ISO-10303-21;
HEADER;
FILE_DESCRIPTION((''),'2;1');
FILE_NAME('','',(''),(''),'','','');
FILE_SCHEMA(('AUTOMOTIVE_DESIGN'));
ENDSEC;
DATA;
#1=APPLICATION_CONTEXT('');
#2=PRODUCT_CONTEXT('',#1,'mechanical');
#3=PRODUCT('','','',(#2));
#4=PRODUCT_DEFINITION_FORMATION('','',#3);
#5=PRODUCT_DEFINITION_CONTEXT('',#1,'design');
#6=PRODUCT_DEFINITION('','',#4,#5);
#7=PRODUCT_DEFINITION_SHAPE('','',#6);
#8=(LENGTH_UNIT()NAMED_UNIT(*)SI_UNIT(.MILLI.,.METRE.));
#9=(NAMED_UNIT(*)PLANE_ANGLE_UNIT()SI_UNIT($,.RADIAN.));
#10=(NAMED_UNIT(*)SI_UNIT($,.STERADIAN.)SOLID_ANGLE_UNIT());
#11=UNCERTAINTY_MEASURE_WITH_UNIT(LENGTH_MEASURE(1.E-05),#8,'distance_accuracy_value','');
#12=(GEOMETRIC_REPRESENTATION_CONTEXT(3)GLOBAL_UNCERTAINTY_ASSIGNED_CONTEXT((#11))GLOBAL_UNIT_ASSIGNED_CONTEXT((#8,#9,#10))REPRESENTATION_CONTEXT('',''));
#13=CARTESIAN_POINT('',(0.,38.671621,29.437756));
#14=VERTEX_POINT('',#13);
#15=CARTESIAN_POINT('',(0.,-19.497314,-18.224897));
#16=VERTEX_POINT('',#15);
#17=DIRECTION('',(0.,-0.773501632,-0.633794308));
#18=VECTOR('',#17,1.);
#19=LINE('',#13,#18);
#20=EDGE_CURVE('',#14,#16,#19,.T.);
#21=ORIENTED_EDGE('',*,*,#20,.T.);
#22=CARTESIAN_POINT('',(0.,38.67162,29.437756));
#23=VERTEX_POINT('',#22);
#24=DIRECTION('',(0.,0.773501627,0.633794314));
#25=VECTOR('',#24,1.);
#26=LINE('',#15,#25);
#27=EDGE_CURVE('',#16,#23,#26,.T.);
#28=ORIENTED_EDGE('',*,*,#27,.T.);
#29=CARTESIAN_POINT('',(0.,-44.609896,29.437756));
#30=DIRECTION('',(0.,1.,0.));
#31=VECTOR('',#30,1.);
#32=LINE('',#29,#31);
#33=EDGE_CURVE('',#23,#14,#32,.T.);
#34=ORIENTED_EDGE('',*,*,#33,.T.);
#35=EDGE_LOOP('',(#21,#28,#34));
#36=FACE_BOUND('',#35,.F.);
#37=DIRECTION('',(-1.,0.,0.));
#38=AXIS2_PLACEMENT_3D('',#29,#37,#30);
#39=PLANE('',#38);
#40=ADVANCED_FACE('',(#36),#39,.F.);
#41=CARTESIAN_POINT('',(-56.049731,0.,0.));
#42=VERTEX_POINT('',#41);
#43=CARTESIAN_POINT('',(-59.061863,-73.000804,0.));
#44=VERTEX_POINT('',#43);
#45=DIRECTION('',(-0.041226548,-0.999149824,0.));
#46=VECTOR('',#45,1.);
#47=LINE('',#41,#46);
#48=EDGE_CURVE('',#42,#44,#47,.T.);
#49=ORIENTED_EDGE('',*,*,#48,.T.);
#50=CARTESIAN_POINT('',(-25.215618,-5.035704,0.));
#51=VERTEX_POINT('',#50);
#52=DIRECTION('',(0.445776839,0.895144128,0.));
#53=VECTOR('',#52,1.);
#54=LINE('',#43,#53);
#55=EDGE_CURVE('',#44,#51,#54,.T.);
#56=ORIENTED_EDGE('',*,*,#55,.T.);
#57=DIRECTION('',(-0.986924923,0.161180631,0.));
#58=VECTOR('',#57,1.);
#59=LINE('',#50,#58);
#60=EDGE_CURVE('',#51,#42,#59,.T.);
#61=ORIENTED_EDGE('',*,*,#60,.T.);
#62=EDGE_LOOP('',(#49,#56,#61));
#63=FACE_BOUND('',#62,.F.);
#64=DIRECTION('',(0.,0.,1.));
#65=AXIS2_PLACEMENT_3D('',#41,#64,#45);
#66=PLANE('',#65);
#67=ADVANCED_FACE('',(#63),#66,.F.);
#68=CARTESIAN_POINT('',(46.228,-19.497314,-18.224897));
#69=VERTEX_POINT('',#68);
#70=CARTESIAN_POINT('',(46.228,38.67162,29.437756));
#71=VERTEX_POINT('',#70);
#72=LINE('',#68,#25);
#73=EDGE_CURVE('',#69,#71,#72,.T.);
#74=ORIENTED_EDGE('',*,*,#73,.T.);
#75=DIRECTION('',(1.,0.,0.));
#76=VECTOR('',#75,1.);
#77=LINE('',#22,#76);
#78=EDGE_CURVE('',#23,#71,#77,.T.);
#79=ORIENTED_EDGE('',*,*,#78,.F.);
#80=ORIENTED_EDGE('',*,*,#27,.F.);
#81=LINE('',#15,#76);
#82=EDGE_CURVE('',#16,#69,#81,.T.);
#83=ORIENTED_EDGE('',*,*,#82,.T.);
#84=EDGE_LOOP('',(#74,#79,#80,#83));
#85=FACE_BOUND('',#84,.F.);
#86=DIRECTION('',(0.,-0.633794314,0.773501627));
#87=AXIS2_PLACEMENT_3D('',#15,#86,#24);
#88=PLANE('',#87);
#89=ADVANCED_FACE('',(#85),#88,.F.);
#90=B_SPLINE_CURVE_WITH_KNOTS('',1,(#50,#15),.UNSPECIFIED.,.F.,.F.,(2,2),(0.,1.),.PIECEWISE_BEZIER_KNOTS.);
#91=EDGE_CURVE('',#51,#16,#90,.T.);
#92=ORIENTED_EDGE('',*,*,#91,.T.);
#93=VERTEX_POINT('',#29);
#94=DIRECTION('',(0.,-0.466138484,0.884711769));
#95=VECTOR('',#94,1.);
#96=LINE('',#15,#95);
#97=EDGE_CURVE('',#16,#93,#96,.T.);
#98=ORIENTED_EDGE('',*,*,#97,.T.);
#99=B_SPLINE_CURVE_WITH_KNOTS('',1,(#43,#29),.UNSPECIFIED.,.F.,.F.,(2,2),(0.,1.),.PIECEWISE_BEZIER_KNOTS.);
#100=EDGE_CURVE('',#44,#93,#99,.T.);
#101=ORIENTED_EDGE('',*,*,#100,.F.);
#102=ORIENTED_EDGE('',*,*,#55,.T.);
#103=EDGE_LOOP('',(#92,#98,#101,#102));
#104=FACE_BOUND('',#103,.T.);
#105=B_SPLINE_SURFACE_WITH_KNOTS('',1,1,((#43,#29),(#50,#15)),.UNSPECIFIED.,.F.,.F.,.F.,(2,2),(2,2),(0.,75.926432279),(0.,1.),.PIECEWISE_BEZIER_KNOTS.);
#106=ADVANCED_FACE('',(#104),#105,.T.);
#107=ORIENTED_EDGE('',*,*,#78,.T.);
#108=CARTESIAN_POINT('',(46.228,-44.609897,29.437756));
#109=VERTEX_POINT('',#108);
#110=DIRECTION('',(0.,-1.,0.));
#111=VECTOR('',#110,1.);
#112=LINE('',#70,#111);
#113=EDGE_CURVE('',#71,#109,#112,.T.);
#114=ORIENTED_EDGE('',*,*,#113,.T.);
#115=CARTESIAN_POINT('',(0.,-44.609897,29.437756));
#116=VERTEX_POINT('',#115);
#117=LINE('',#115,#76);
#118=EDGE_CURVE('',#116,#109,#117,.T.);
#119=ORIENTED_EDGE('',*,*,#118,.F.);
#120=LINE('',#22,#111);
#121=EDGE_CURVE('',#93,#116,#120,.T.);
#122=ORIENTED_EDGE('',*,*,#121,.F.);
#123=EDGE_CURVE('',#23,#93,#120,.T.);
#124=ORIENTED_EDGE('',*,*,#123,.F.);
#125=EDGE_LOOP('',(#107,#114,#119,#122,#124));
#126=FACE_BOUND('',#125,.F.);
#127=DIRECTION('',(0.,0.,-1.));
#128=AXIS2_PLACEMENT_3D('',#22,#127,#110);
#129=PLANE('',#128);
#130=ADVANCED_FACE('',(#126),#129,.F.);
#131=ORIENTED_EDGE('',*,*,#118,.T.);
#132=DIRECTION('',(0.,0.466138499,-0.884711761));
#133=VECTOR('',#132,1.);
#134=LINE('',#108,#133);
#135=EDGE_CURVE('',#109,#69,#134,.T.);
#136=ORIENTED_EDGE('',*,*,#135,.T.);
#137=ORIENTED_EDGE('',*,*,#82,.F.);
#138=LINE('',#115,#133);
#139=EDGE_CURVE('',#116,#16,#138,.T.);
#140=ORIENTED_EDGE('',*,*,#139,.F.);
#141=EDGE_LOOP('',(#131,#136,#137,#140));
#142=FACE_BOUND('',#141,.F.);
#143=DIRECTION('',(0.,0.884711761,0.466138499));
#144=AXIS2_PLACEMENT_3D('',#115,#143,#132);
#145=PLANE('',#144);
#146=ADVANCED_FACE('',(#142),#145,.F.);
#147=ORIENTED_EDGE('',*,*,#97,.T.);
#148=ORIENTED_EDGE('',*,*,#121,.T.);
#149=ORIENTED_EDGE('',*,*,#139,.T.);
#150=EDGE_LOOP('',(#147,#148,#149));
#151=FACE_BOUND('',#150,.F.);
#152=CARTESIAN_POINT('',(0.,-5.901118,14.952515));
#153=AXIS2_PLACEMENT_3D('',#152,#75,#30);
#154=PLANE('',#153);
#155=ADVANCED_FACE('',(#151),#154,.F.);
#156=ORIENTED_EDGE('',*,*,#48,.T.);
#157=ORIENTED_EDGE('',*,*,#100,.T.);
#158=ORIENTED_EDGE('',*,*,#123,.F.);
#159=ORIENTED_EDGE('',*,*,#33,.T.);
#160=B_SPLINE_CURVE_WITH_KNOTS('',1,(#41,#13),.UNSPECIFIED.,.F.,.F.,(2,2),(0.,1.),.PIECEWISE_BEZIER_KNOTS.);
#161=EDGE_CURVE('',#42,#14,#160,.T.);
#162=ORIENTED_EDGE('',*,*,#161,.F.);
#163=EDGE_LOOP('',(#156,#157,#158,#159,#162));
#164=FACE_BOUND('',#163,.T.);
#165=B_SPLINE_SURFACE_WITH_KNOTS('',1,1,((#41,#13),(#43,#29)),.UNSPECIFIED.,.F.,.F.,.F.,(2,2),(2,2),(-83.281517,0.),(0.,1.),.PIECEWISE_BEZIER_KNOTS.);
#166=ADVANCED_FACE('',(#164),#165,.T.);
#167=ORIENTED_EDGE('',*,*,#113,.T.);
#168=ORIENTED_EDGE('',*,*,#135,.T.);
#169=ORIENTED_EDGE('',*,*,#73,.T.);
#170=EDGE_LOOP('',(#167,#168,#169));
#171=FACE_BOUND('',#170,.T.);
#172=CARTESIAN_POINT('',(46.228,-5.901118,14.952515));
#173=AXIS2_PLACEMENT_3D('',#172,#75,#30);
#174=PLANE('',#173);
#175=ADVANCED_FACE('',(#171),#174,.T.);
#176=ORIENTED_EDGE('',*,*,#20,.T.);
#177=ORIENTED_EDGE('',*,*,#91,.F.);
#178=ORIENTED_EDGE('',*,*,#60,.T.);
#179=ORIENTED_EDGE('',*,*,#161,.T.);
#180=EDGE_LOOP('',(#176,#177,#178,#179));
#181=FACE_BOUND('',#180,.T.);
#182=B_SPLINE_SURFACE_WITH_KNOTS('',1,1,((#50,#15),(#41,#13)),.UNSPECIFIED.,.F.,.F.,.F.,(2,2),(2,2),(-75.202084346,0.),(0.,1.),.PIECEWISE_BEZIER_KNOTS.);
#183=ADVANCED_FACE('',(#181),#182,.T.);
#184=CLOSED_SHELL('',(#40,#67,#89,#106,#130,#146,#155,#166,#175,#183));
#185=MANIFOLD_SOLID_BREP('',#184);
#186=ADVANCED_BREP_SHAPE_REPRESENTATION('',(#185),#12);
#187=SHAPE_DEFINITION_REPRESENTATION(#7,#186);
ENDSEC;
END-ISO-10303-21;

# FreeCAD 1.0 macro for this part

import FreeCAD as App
import Part
import Sketcher
Q = App.Units.Quantity

doc = App.newDocument("Part")
body = doc.addObject("PartDesign::Body", "Body")

# Sketch on YZ plane
sketch1 = body.newObject("Sketcher::SketchObject", "Sketch")
sketch1.AttachmentSupport = (doc.getObject("YZ_Plane"), [""])
sketch1.MapMode = "FlatFace"
sketch1.addGeometry([
    Part.LineSegment(App.Vector(39, 29, 0), App.Vector(-45, 29, 0)),
    Part.LineSegment(App.Vector(-45, 29, 0), App.Vector(-19, -18, 0)),
    Part.LineSegment(App.Vector(-19, -18, 0), App.Vector(39, 29, 0)),
], False)
sketch1.addConstraint([
    Sketcher.Constraint("Coincident", 0, 2, 1, 1),
    Sketcher.Constraint("Coincident", 1, 2, 2, 1),
    Sketcher.Constraint("Coincident", 2, 2, 0, 1),
    Sketcher.Constraint("Horizontal", 0),
    Sketcher.Constraint("DistanceX", 0, 2, 0, 1, Q("3.2787999 in")),
    Sketcher.Constraint("Distance", 1, Q("53.873651 mm")),
    Sketcher.Constraint("DistanceX", -1, 1, 2, 2, Q("38.67162 mm")),
    Sketcher.Constraint("Distance", 2, Q("75.202084 mm")),
    Sketcher.Constraint("DistanceY", -1, 1, 0, 2, Q("29.437756 mm")),
])
pad1 = body.newObject("PartDesign::Pad", "Pad")
pad1.Profile = sketch1
pad1.Length = Q("1.82 in")

# Sketch on XY plane
sketch2 = body.newObject("Sketcher::SketchObject", "Sketch001")
sketch2.AttachmentSupport = (doc.getObject("XY_Plane"), [""])
sketch2.MapMode = "FlatFace"
sketch2.addGeometry([
    Part.LineSegment(App.Vector(-56, 0, 0), App.Vector(-59, -73, 0)),
    Part.LineSegment(App.Vector(-59, -73, 0), App.Vector(-25, -5, 0)),
    Part.LineSegment(App.Vector(-25, -5, 0), App.Vector(-56, 0, 0)),
], False)
sketch2.addConstraint([
    Sketcher.Constraint("Coincident", 0, 2, 1, 1),
    Sketcher.Constraint("Coincident", 1, 2, 2, 1),
    Sketcher.Constraint("Coincident", 2, 2, 0, 1),
    Sketcher.Constraint("PointOnObject", 2, 2, -1),
    Sketcher.Constraint("DistanceY", 0, 2, 1, 2, Q("67.9651 mm")),
    Sketcher.Constraint("Distance", 0, Q("73.06292 mm")),
    Sketcher.Constraint("DistanceX", 2, 2, -1, 1, Q("56.049731 mm")),
    Sketcher.Constraint("Distance", 1, Q("75.926432 mm")),
    Sketcher.Constraint("Distance", 2, Q("31.242613 mm")),
])

# Sketch on YZ plane
sketch3 = body.newObject("Sketcher::SketchObject", "Sketch002")
sketch3.AttachmentSupport = (doc.getObject("YZ_Plane"), [""])
sketch3.MapMode = "FlatFace"
sketch3.addGeometry([
    Part.LineSegment(App.Vector(39, 29, 0), App.Vector(-19, -18, 0)),
    Part.LineSegment(App.Vector(-19, -18, 0), App.Vector(-45, 29, 0)),
    Part.LineSegment(App.Vector(-45, 29, 0), App.Vector(39, 29, 0)),
], False)
sketch3.addConstraint([
    Sketcher.Constraint("Coincident", 0, 2, 1, 1),
    Sketcher.Constraint("Coincident", 1, 2, 2, 1),
    Sketcher.Constraint("Coincident", 2, 2, 0, 1),
    Sketcher.Constraint("Horizontal", 2),
    Sketcher.Constraint("DistanceX", 2, 1, 2, 2, Q("3.2787999 in")),
    Sketcher.Constraint("Distance", 1, Q("53.873651 mm")),
    Sketcher.Constraint("DistanceX", -1, 1, 2, 2, Q("38.671621 mm")),
    Sketcher.Constraint("DistanceX", 1, 2, 0, 2, Q("25.112582 mm")),
    Sketcher.Constraint("DistanceY", 0, 2, -1, 1, Q("18.224897 mm")),
])

additiveloft = body.newObject("PartDesign::AdditiveLoft", "AdditiveLoft")
additiveloft.Profile = sketch2
additiveloft.Sections = [sketch3]

doc.recompute()
